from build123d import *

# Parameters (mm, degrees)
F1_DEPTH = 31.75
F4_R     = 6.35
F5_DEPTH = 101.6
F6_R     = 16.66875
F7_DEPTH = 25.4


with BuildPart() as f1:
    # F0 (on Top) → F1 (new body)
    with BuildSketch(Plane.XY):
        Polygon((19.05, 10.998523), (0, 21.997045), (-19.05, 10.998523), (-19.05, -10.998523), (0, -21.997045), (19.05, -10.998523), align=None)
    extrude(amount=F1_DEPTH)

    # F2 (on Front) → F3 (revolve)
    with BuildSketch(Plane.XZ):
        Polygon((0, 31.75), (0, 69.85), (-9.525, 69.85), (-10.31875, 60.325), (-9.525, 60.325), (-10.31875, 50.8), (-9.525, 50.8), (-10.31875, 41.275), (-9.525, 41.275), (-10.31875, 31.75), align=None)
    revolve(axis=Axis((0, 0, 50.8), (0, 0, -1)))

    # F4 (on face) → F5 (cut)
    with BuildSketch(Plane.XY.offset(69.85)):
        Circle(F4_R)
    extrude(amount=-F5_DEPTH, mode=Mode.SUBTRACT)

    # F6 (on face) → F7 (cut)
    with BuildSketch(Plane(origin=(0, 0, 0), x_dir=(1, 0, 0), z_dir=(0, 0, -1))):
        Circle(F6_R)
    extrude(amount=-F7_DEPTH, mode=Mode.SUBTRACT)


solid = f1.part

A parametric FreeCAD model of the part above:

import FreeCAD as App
import Part
import Sketcher
Q = App.Units.Quantity

doc = App.newDocument("Part")
params = doc.addObject("Spreadsheet::Sheet", "Params")
for row, (alias, value) in enumerate([
    ("pad1_length", "1.25 in"),
    ("sketch2_height", "1.5 in"),
    ("sketch2_width", "0.375 in"),
    ("sketch2_width2", "0.03125 in"),
    ("revolution_angle", "360 deg"),
    ("sketch3_diameter", "0.5 in"),
    ("pocket1_length", "4 in"),
    ("sketch4_diameter", "1.3125 in"),
    ("pocket2_length", "1 in"),
], start=1):
    params.set(f"A{row}", alias)
    params.set(f"B{row}", "=" + value)
    params.setAlias(f"B{row}", alias)

body = doc.addObject("PartDesign::Body", "Body")

# Sketch on XY plane
sketch1 = body.newObject("Sketcher::SketchObject", "Sketch")
sketch1.AttachmentSupport = (doc.getObject("XY_Plane"), [""])
sketch1.MapMode = "FlatFace"
sketch1.addGeometry([
    Part.LineSegment(App.Vector(19.05, 10.998523, 0), App.Vector(0, 21.997045, 0)),  # 0
    Part.LineSegment(App.Vector(0, 21.997045, 0), App.Vector(-19.05, 10.998523, 0)),  # 1
    Part.LineSegment(App.Vector(-19.05, 10.998523, 0), App.Vector(-19.05, -10.998523, 0)),  # 2
    Part.LineSegment(App.Vector(-19.05, -10.998523, 0), App.Vector(0, -21.997045, 0)),  # 3
    Part.LineSegment(App.Vector(0, -21.997045, 0), App.Vector(19.05, -10.998523, 0)),  # 4
    Part.LineSegment(App.Vector(19.05, -10.998523, 0), App.Vector(19.05, 10.998523, 0)),  # 5
], False)
sketch1.addConstraint([
    Sketcher.Constraint("Coincident", 0, 2, 1, 1),
    Sketcher.Constraint("Coincident", 1, 2, 2, 1),
    Sketcher.Constraint("Coincident", 2, 2, 3, 1),
    Sketcher.Constraint("Coincident", 3, 2, 4, 1),
    Sketcher.Constraint("Coincident", 4, 2, 5, 1),
    Sketcher.Constraint("Coincident", 5, 2, 0, 1),
    Sketcher.Constraint("Vertical", 2),
    Sketcher.Constraint("Vertical", 5),
    Sketcher.Constraint("Symmetric", 0, 2, 3, 2, -1, 1),
    Sketcher.Constraint("Symmetric", 1, 2, 4, 2, -1, 1),
    Sketcher.Constraint("PointOnObject", 0, 2, -2),
    Sketcher.Constraint("Parallel", 0, 3),
    Sketcher.Constraint("Horizontal", 2, 2, 4, 2),
    Sketcher.Constraint("Angle", 0, Q("150.000001 deg")),
    Sketcher.Constraint("DistanceX", 2, 2, 4, 2, Q("1.5 in")),
    Sketcher.Constraint("DistanceY", 2, 2, 2, 1, Q("21.997046 mm")),
])
pad1 = body.newObject("PartDesign::Pad", "Pad")
pad1.Profile = sketch1
pad1.setExpression("Length", "Params.pad1_length")

# Sketch on XZ plane
sketch2 = body.newObject("Sketcher::SketchObject", "Sketch001")
sketch2.AttachmentSupport = (doc.getObject("XZ_Plane"), [""])
sketch2.MapMode = "FlatFace"
sketch2.addGeometry([
    Part.LineSegment(App.Vector(0, 31.75, 0), App.Vector(0, 69.85, 0)),  # 0
    Part.LineSegment(App.Vector(0, 69.85, 0), App.Vector(-9.525, 69.85, 0)),  # 1
    Part.LineSegment(App.Vector(-9.525, 69.85, 0), App.Vector(-10.31875, 60.325, 0)),  # 2
    Part.LineSegment(App.Vector(-10.31875, 60.325, 0), App.Vector(-9.525, 60.325, 0)),  # 3
    Part.LineSegment(App.Vector(-9.525, 60.325, 0), App.Vector(-10.31875, 50.8, 0)),  # 4
    Part.LineSegment(App.Vector(-10.31875, 50.8, 0), App.Vector(-9.525, 50.8, 0)),  # 5
    Part.LineSegment(App.Vector(-9.525, 50.8, 0), App.Vector(-10.31875, 41.275, 0)),  # 6
    Part.LineSegment(App.Vector(-10.31875, 41.275, 0), App.Vector(-9.525, 41.275, 0)),  # 7
    Part.LineSegment(App.Vector(-9.525, 41.275, 0), App.Vector(-10.31875, 31.75, 0)),  # 8
    Part.LineSegment(App.Vector(-10.31875, 31.75, 0), App.Vector(0, 31.75, 0)),  # 9
], False)
sketch2.addConstraint([
    Sketcher.Constraint("Coincident", 0, 2, 1, 1),
    Sketcher.Constraint("Coincident", 1, 2, 2, 1),
    Sketcher.Constraint("Coincident", 2, 2, 3, 1),
    Sketcher.Constraint("Coincident", 3, 2, 4, 1),
    Sketcher.Constraint("Coincident", 4, 2, 5, 1),
    Sketcher.Constraint("Coincident", 5, 2, 6, 1),
    Sketcher.Constraint("Coincident", 6, 2, 7, 1),
    Sketcher.Constraint("Coincident", 7, 2, 8, 1),
    Sketcher.Constraint("Coincident", 8, 2, 9, 1),
    Sketcher.Constraint("Coincident", 9, 2, 0, 1),
    Sketcher.Constraint("Vertical", 0),
    Sketcher.Constraint("Horizontal", 1),
    Sketcher.Constraint("Horizontal", 3),
    Sketcher.Constraint("Horizontal", 5),
    Sketcher.Constraint("Horizontal", 7),
    Sketcher.Constraint("Horizontal", 9),
    Sketcher.Constraint("PointOnObject", 0, 2, -2),
    Sketcher.Constraint("Parallel", 2, 4),
    Sketcher.Constraint("Parallel", 4, 6),
    Sketcher.Constraint("Parallel", 6, 8),
    Sketcher.Constraint("Vertical", 1, 2, 3, 2),
    Sketcher.Constraint("Vertical", 2, 2, 4, 2),
    Sketcher.Constraint("Vertical", 3, 2, 5, 2),
    Sketcher.Constraint("Vertical", 4, 2, 6, 2),
    Sketcher.Constraint("Vertical", 5, 2, 7, 2),
    Sketcher.Constraint("Vertical", 6, 2, 8, 2),
    Sketcher.Constraint("DistanceY", 0, 1, 0, 2, Q("1.5 in")),
    Sketcher.Constraint("DistanceY", -1, 1, 4, 2, Q("2 in")),
    Sketcher.Constraint("DistanceX", 1, 2, 1, 1, Q("0.375 in")),
    Sketcher.Constraint("DistanceX", 3, 1, 3, 2, Q("0.03125 in")),
])
sketch2.setExpression("Constraints[26]", "Params.sketch2_height")
sketch2.setExpression("Constraints[28]", "Params.sketch2_width")
sketch2.setExpression("Constraints[29]", "Params.sketch2_width2")
revolution = body.newObject("PartDesign::Revolution", "Revolution")
revolution.Profile = sketch2
revolution.ReferenceAxis = (sketch2, ["V_Axis"])
revolution.setExpression("Angle", "Params.revolution_angle")

# Sketch on XY plane
sketch3 = body.newObject("Sketcher::SketchObject", "Sketch002")
sketch3.AttachmentSupport = (doc.getObject("XY_Plane"), [""])
sketch3.MapMode = "FlatFace"
sketch3.AttachmentOffset = App.Placement(App.Vector(0, 0, 2.75 * 25.4), App.Rotation())
sketch3.addGeometry(Part.Circle(App.Vector(0, 0, 0), App.Vector(0, 0, 1), 6.35), False)
sketch3.addConstraint([
    Sketcher.Constraint("Coincident", 0, 3, -1, 1),
    Sketcher.Constraint("Diameter", 0, Q("0.5 in")),
])
sketch3.setExpression("Constraints[1]", "Params.sketch3_diameter")
pocket1 = body.newObject("PartDesign::Pocket", "Pocket")
pocket1.Profile = sketch3
pocket1.setExpression("Length", "Params.pocket1_length")

# Sketch on XY plane
sketch4 = body.newObject("Sketcher::SketchObject", "Sketch003")
sketch4.AttachmentSupport = (doc.getObject("XY_Plane"), [""])
sketch4.MapMode = "FlatFace"
sketch4.addGeometry(Part.Circle(App.Vector(0, 0, 0), App.Vector(0, 0, 1), 16.66875), False)
sketch4.addConstraint([
    Sketcher.Constraint("Coincident", 0, 3, -1, 1),
    Sketcher.Constraint("Diameter", 0, Q("1.3125 in")),
])
sketch4.setExpression("Constraints[1]", "Params.sketch4_diameter")
pocket2 = body.newObject("PartDesign::Pocket", "Pocket001")
pocket2.Profile = sketch4
pocket2.setExpression("Length", "Params.pocket2_length")
pocket2.Reversed = True

doc.recompute()
